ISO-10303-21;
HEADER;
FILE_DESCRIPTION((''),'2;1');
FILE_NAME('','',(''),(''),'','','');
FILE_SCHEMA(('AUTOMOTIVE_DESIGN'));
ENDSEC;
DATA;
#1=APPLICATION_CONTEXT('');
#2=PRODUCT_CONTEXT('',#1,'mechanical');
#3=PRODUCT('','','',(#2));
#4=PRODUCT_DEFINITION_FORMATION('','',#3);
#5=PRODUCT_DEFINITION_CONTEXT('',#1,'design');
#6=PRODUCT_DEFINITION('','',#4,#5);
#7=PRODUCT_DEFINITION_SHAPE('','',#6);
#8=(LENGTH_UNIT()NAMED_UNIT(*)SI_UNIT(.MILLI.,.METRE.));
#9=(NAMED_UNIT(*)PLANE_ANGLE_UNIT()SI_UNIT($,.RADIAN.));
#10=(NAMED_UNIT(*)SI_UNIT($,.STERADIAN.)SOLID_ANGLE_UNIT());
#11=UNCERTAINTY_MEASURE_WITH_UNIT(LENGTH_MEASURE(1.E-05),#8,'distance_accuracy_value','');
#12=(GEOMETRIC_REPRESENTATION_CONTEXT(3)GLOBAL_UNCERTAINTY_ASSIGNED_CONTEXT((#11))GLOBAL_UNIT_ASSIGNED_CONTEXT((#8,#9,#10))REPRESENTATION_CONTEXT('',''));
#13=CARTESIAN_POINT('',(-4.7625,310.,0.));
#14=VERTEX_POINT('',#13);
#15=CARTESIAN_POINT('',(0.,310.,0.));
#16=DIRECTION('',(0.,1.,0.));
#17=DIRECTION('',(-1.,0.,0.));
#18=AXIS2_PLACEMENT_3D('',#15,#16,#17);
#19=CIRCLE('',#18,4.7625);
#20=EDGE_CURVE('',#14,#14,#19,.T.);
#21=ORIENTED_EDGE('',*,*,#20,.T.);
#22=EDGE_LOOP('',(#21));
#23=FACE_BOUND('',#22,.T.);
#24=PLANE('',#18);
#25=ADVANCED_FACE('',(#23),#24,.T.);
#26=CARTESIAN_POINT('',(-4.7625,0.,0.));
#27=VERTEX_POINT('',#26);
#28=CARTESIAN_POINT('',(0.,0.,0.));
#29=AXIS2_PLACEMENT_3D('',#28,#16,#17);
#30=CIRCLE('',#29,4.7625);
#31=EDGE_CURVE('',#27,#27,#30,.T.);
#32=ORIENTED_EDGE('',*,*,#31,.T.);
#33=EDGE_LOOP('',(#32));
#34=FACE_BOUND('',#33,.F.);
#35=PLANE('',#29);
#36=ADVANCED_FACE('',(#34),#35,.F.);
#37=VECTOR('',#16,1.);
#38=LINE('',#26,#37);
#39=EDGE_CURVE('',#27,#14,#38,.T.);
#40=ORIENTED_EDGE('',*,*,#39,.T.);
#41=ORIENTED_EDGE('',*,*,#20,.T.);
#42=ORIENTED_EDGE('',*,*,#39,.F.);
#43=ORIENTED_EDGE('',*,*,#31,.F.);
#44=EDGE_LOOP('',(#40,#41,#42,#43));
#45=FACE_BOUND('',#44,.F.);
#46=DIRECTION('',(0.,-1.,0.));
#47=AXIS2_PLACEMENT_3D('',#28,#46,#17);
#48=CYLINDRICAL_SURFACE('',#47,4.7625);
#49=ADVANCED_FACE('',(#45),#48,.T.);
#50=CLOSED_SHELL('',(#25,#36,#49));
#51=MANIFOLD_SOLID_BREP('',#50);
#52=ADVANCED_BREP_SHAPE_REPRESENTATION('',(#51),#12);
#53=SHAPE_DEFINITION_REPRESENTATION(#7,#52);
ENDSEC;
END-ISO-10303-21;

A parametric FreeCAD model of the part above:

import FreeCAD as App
import Part
import Sketcher
from FreeCAD import Vector

doc = App.newDocument("Part")
params = doc.addObject("Spreadsheet::Sheet", "Params")
for row, (alias, value) in enumerate([
    ("pad1_length", "310 mm"),
], start=1):
    params.set(f"A{row}", alias)
    params.set(f"B{row}", "=" + value)
    params.setAlias(f"B{row}", alias)

body = doc.addObject("PartDesign::Body", "Body")

# Sketch on XZ plane
sketch1 = doc.addObject("Sketcher::SketchObject", "Sketch")
body.addObject(sketch1)
sketch1.AttachmentSupport = (doc.XZ_Plane, [""])
sketch1.MapMode = "FlatFace"
sketch1.addGeometry(Part.Circle(Vector(0, 0, 0), Vector(0, 0, 1), 4.8), False)
sketch1.addConstraint([
    Sketcher.Constraint("Coincident", 0, 3, -1, 1),
    Sketcher.Constraint("Diameter", 0, 9.525),
])
pad1 = doc.addObject("PartDesign::Pad", "Pad")
body.addObject(pad1)
pad1.Profile = sketch1
pad1.setExpression("Length", "Params.pad1_length")
pad1.Reversed = True

doc.recompute()
